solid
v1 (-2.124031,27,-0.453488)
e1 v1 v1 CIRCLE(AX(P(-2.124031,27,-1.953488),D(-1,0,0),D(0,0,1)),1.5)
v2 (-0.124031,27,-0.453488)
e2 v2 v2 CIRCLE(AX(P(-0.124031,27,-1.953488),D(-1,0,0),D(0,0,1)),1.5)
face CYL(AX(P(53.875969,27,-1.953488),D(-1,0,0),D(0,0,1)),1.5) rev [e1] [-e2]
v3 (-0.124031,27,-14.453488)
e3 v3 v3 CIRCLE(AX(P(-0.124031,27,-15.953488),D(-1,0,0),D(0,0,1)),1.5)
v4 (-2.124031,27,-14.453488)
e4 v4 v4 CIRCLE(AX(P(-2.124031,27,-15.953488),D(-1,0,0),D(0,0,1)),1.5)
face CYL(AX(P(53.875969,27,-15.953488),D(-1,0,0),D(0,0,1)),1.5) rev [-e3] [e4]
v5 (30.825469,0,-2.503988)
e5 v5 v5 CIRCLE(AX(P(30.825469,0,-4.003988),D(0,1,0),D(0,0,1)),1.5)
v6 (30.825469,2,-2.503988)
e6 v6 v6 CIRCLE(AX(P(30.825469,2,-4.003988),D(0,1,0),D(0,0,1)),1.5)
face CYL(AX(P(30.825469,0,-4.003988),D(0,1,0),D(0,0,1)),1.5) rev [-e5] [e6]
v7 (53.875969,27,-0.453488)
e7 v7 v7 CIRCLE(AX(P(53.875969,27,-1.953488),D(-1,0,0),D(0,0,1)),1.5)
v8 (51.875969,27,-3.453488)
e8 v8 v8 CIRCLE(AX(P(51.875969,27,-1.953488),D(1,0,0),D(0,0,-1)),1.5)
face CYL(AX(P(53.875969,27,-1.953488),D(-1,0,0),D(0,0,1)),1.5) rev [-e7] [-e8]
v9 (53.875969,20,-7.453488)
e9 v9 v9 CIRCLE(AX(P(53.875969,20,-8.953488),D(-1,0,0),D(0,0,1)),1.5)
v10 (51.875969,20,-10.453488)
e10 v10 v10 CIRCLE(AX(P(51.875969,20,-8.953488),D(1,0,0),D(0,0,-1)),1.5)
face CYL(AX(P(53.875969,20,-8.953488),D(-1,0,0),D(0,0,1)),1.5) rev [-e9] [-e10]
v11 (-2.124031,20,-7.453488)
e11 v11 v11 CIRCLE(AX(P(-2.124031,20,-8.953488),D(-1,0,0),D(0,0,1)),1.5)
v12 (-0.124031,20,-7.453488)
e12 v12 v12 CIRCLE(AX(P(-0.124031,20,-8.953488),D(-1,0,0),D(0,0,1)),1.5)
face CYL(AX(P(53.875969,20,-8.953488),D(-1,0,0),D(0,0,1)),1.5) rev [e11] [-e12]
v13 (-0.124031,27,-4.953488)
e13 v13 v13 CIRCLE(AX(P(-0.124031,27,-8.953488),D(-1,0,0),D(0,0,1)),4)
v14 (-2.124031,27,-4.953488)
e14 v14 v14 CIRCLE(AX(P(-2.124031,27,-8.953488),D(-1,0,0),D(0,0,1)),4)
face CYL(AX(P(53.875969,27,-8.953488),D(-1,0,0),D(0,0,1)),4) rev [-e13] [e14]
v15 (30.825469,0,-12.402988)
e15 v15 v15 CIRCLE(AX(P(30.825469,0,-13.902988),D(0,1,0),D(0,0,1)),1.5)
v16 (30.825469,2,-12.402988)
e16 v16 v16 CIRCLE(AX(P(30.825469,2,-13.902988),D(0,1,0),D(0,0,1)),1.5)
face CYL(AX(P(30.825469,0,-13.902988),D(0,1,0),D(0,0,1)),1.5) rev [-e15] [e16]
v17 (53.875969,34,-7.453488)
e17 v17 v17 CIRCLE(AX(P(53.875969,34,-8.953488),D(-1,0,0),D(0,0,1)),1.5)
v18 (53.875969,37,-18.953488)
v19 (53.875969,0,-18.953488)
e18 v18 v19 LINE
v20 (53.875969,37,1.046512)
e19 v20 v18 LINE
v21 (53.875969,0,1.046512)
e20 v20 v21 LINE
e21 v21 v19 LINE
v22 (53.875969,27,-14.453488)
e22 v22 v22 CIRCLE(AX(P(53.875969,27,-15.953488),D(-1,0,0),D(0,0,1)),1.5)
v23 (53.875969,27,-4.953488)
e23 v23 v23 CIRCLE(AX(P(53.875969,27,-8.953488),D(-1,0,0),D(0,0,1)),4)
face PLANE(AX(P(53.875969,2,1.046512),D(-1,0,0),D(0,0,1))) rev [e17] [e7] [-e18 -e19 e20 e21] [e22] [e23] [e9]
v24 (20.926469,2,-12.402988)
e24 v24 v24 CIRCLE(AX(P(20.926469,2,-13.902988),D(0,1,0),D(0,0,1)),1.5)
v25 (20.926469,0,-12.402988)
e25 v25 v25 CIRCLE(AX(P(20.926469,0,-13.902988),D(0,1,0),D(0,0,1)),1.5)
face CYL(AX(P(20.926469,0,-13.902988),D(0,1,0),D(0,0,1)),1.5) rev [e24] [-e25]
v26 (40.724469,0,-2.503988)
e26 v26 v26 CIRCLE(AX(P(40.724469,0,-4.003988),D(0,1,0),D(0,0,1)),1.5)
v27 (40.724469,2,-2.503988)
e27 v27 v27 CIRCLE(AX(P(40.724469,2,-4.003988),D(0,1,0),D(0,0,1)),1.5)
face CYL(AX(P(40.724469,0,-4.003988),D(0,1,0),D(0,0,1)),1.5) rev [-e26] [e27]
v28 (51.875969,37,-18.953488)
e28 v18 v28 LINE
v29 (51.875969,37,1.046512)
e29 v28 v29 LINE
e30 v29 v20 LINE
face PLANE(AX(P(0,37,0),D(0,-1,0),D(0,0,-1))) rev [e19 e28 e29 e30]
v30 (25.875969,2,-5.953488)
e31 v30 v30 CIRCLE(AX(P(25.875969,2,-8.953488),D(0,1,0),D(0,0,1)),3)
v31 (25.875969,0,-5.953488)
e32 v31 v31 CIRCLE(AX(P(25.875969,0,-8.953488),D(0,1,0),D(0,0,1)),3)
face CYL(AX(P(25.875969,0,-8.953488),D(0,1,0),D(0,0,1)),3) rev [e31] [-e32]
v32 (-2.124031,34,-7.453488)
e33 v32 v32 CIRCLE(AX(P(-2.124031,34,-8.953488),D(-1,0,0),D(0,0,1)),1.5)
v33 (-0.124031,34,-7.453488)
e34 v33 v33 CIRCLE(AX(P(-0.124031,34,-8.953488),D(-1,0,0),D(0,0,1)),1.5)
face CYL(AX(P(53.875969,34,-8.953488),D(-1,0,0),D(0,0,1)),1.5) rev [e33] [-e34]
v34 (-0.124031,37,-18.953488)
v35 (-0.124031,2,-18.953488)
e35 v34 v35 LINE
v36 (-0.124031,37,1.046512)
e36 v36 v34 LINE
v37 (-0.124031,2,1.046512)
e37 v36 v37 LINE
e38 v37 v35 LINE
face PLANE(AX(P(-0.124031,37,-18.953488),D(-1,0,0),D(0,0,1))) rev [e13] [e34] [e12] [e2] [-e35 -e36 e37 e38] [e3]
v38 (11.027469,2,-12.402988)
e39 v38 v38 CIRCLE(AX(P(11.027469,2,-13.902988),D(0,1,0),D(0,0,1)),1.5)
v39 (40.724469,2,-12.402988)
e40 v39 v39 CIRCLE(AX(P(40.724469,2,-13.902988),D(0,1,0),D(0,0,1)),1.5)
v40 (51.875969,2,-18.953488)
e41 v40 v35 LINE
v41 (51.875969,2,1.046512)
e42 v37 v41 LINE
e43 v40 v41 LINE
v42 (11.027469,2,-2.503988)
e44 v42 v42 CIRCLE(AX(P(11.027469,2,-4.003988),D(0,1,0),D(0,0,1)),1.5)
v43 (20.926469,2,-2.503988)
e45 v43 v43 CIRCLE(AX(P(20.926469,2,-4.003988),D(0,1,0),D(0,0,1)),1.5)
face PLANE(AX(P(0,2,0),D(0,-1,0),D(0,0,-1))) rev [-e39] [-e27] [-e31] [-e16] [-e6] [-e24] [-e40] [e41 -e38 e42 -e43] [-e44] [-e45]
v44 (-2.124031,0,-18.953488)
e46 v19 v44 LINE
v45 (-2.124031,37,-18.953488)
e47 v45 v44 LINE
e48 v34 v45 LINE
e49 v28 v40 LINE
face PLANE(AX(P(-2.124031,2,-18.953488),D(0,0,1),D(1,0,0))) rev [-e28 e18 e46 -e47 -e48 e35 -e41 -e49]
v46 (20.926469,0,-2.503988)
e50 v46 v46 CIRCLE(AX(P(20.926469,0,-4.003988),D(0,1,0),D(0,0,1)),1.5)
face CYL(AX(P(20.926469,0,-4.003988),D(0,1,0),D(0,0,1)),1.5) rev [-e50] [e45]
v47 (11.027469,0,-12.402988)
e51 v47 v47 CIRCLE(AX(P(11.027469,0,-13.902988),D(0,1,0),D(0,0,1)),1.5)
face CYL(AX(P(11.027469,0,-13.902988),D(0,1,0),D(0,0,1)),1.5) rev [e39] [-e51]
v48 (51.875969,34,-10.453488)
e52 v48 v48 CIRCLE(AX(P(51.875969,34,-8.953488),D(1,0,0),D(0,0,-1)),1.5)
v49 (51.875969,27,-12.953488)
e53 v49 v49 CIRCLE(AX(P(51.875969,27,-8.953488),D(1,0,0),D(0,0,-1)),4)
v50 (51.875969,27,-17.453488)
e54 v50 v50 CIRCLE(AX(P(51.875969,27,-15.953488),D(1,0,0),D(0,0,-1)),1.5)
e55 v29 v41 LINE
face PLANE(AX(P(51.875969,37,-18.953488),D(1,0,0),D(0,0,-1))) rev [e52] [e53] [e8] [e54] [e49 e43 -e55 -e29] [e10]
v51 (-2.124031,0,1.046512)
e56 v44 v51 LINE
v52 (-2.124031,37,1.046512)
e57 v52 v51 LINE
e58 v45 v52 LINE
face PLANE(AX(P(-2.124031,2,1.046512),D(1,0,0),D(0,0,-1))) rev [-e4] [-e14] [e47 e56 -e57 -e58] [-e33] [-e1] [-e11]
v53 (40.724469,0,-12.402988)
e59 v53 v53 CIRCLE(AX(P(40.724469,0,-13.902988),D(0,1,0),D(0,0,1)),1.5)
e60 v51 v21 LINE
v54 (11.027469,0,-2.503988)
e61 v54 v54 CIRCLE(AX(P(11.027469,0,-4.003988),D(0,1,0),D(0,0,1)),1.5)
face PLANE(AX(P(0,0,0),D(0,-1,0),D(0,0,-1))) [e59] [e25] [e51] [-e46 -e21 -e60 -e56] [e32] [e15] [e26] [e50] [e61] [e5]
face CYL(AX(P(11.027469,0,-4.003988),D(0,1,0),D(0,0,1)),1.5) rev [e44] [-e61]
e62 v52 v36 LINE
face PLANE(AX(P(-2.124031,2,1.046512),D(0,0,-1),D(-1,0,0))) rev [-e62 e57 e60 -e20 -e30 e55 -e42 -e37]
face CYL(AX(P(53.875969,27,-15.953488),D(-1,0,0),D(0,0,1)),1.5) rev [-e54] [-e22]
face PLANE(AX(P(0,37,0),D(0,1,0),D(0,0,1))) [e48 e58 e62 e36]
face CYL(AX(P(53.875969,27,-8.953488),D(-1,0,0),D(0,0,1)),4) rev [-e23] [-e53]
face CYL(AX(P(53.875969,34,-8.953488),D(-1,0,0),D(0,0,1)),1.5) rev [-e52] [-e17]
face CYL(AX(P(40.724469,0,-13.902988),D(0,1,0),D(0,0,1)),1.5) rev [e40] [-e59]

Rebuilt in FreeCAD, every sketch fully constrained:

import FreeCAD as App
import Part
import Sketcher

V = App.Vector
Q = App.Units.Quantity

doc = App.newDocument("Part")
body = doc.addObject("PartDesign::Body", "Body")

# Sketch on XZ plane
sketch1 = body.newObject("Sketcher::SketchObject", "Sketch")
sketch1.AttachmentSupport = (doc.getObject("XZ_Plane"), [""])
sketch1.MapMode = "FlatFace"
sketch1.addGeometry([
    Part.LineSegment(V(-2, -19, 0), V(-2, 1, 0)),
    Part.LineSegment(V(-2, 1, 0), V(54, 1, 0)),
    Part.LineSegment(V(54, 1, 0), V(54, -19, 0)),
    Part.LineSegment(V(54, -19, 0), V(-2, -19, 0)),
], False)
sketch1.addConstraint([
    Sketcher.Constraint("Coincident", 0, 2, 1, 1),
    Sketcher.Constraint("Coincident", 1, 2, 2, 1),
    Sketcher.Constraint("Coincident", 2, 2, 3, 1),
    Sketcher.Constraint("Coincident", 3, 2, 0, 1),
    Sketcher.Constraint("Vertical", 0),
    Sketcher.Constraint("Horizontal", 1),
    Sketcher.Constraint("Vertical", 2),
    Sketcher.Constraint("Horizontal", 3),
    Sketcher.Constraint("DistanceX", 1, 1, 1, 2, Q("56 mm")),
    Sketcher.Constraint("DistanceY", 0, 1, 0, 2, Q("20 mm")),
    Sketcher.Constraint("DistanceX", 0, 2, -1, 1, Q("2.124031 mm")),
    Sketcher.Constraint("DistanceY", -1, 1, 0, 2, Q("1.046512 mm")),
])
pad1 = body.newObject("PartDesign::Pad", "Pad")
pad1.Profile = sketch1
pad1.Length = 2
pad1.Reversed = True

# Sketch on XZ plane
sketch2 = body.newObject("Sketcher::SketchObject", "Sketch001")
sketch2.AttachmentSupport = (doc.getObject("XZ_Plane"), [""])
sketch2.MapMode = "FlatFace"
sketch2.AttachmentOffset = App.Placement(V(0, 0, -2), App.Rotation())
sketch2.addGeometry([
    Part.LineSegment(V(-2.1, -19, 0), V(-2.1, 1, 0)),  # 0
    Part.LineSegment(V(-2.1, 1, 0), V(-0.1, 1, 0)),  # 1
    Part.LineSegment(V(-0.1, 1, 0), V(-0.1, -19, 0)),  # 2
    Part.LineSegment(V(-0.1, -19, 0), V(-2.1, -19, 0)),  # 3
    Part.LineSegment(V(51.9, -19, 0), V(51.9, 1, 0)),  # 4
    Part.LineSegment(V(51.9, 1, 0), V(53.9, 1, 0)),  # 5
    Part.LineSegment(V(53.9, 1, 0), V(53.9, -19, 0)),  # 6
    Part.LineSegment(V(53.9, -19, 0), V(51.9, -19, 0)),  # 7
], False)
sketch2.addConstraint([
    Sketcher.Constraint("Coincident", 0, 2, 1, 1),
    Sketcher.Constraint("Coincident", 1, 2, 2, 1),
    Sketcher.Constraint("Coincident", 2, 2, 3, 1),
    Sketcher.Constraint("Coincident", 3, 2, 0, 1),
    Sketcher.Constraint("Coincident", 4, 2, 5, 1),
    Sketcher.Constraint("Coincident", 5, 2, 6, 1),
    Sketcher.Constraint("Coincident", 6, 2, 7, 1),
    Sketcher.Constraint("Coincident", 7, 2, 4, 1),
    Sketcher.Constraint("Vertical", 0),
    Sketcher.Constraint("Horizontal", 1),
    Sketcher.Constraint("Vertical", 2),
    Sketcher.Constraint("Horizontal", 3),
    Sketcher.Constraint("Vertical", 4),
    Sketcher.Constraint("Horizontal", 5),
    Sketcher.Constraint("Vertical", 6),
    Sketcher.Constraint("Horizontal", 7),
    Sketcher.Constraint("Horizontal", 1, 2, 4, 2),
    Sketcher.Constraint("Horizontal", 3, 2, 6, 2),
    Sketcher.Constraint("Equal", 3, 5),
    Sketcher.Constraint("DistanceX", 1, 1, 1, 2, Q("2 mm")),
    Sketcher.Constraint("DistanceY", 0, 1, 0, 2, Q("20 mm")),
    Sketcher.Constraint("DistanceX", 1, 2, 4, 2, Q("52 mm")),
    Sketcher.Constraint("DistanceX", 0, 2, -1, 1, Q("2.124031 mm")),
    Sketcher.Constraint("DistanceY", -1, 1, 0, 2, Q("1.046512 mm")),
])
pad2 = body.newObject("PartDesign::Pad", "Pad001")
pad2.Profile = sketch2
pad2.Length = 35
pad2.Reversed = True

# Sketch on YZ plane
sketch3 = body.newObject("Sketcher::SketchObject", "Sketch002")
sketch3.AttachmentSupport = (doc.getObject("YZ_Plane"), [""])
sketch3.MapMode = "FlatFace"
sketch3.AttachmentOffset = App.Placement(V(0, 0, -2.124031), App.Rotation())
sketch3.addGeometry([
    Part.Circle(V(27, -9, 0), V(0, 0, 1), 4),  # 0
    Part.Circle(V(27, -16, 0), V(0, 0, 1), 1.5),  # 1
    Part.Circle(V(27, -2, 0), V(0, 0, 1), 1.5),  # 2
    Part.Circle(V(34, -9, 0), V(0, 0, 1), 1.5),  # 3
    Part.Circle(V(20, -9, 0), V(0, 0, 1), 1.5),  # 4
], False)
sketch3.addConstraint([
    Sketcher.Constraint("Equal", 1, 2),
    Sketcher.Constraint("Equal", 2, 3),
    Sketcher.Constraint("Equal", 3, 4),
    Sketcher.Constraint("Horizontal", 0, 3, 3, 3),
    Sketcher.Constraint("Horizontal", 3, 3, 4, 3),
    Sketcher.Constraint("Vertical", 0, 3, 1, 3),
    Sketcher.Constraint("Vertical", 1, 3, 2, 3),
    Sketcher.Constraint("Diameter", 0, Q("8 mm")),
    Sketcher.Constraint("Diameter", 1, Q("3 mm")),
    Sketcher.Constraint("DistanceX", -1, 1, 0, 3, Q("27 mm")),
    Sketcher.Constraint("DistanceX", -1, 1, 3, 3, Q("34 mm")),
    Sketcher.Constraint("DistanceX", -1, 1, 4, 3, Q("20 mm")),
    Sketcher.Constraint("DistanceY", 1, 3, 0, 3, Q("7 mm")),
    Sketcher.Constraint("DistanceY", 0, 3, 2, 3, Q("7 mm")),
    Sketcher.Constraint("DistanceY", 0, 3, -1, 1, Q("8.953488 mm")),
])
pocket1 = body.newObject("PartDesign::Pocket", "Pocket")
pocket1.Profile = sketch3
pocket1.Type = "ThroughAll"
pocket1.Reversed = True

# Sketch on XZ plane
sketch4 = body.newObject("Sketcher::SketchObject", "Sketch003")
sketch4.AttachmentSupport = (doc.getObject("XZ_Plane"), [""])
sketch4.MapMode = "FlatFace"
sketch4.AttachmentOffset = App.Placement(V(0, 0, -2), App.Rotation())
sketch4.addGeometry([
    Part.Circle(V(30.8, -4, 0), V(0, 0, 1), 1.5),  # 0
    Part.Circle(V(20.9, -4, 0), V(0, 0, 1), 1.5),  # 1
    Part.Circle(V(30.8, -13.9, 0), V(0, 0, 1), 1.5),  # 2
    Part.Circle(V(20.9, -13.9, 0), V(0, 0, 1), 1.5),  # 3
    Part.Circle(V(25.9, -9, 0), V(0, 0, 1), 3),  # 4
    Part.Circle(V(40.7, -4, 0), V(0, 0, 1), 1.5),  # 5
    Part.Circle(V(40.7, -13.9, 0), V(0, 0, 1), 1.5),  # 6
    Part.Circle(V(11, -13.9, 0), V(0, 0, 1), 1.5),  # 7
    Part.Circle(V(11, -4, 0), V(0, 0, 1), 1.5),  # 8
], False)
sketch4.addConstraint([
    Sketcher.Constraint("Equal", 0, 1),
    Sketcher.Constraint("Equal", 1, 2),
    Sketcher.Constraint("Equal", 2, 3),
    Sketcher.Constraint("Equal", 3, 5),
    Sketcher.Constraint("Equal", 5, 6),
    Sketcher.Constraint("Equal", 6, 7),
    Sketcher.Constraint("Equal", 7, 8),
    Sketcher.Constraint("Horizontal", 0, 3, 1, 3),
    Sketcher.Constraint("Horizontal", 2, 3, 3, 3),
    Sketcher.Constraint("Horizontal", 1, 3, 5, 3),
    Sketcher.Constraint("Horizontal", 3, 3, 6, 3),
    Sketcher.Constraint("Horizontal", 6, 3, 7, 3),
    Sketcher.Constraint("Horizontal", 5, 3, 8, 3),
    Sketcher.Constraint("Vertical", 0, 3, 2, 3),
    Sketcher.Constraint("Vertical", 1, 3, 3, 3),
    Sketcher.Constraint("Vertical", 5, 3, 6, 3),
    Sketcher.Constraint("Vertical", 7, 3, 8, 3),
    Sketcher.Constraint("Diameter", 0, Q("3 mm")),
    Sketcher.Constraint("Diameter", 4, Q("6 mm")),
    Sketcher.Constraint("DistanceX", 1, 3, 0, 3, Q("9.899 mm")),
    Sketcher.Constraint("DistanceY", 2, 3, 0, 3, Q("9.899 mm")),
    Sketcher.Constraint("DistanceX", 0, 3, 5, 3, Q("9.899 mm")),
    Sketcher.Constraint("DistanceX", 7, 3, 3, 3, Q("9.899 mm")),
    Sketcher.Constraint("DistanceX", 4, 3, 2, 3, Q("4.9495 mm")),
    Sketcher.Constraint("DistanceY", 2, 3, 4, 3, Q("4.9495 mm")),
    Sketcher.Constraint("DistanceX", -1, 1, 0, 3, Q("30.825469 mm")),
    Sketcher.Constraint("DistanceY", 0, 3, -1, 1, Q("4.003988 mm")),
])
pocket2 = body.newObject("PartDesign::Pocket", "Pocket001")
pocket2.Profile = sketch4
pocket2.Type = "ThroughAll"
pocket2.Reversed = True

doc.recompute()
